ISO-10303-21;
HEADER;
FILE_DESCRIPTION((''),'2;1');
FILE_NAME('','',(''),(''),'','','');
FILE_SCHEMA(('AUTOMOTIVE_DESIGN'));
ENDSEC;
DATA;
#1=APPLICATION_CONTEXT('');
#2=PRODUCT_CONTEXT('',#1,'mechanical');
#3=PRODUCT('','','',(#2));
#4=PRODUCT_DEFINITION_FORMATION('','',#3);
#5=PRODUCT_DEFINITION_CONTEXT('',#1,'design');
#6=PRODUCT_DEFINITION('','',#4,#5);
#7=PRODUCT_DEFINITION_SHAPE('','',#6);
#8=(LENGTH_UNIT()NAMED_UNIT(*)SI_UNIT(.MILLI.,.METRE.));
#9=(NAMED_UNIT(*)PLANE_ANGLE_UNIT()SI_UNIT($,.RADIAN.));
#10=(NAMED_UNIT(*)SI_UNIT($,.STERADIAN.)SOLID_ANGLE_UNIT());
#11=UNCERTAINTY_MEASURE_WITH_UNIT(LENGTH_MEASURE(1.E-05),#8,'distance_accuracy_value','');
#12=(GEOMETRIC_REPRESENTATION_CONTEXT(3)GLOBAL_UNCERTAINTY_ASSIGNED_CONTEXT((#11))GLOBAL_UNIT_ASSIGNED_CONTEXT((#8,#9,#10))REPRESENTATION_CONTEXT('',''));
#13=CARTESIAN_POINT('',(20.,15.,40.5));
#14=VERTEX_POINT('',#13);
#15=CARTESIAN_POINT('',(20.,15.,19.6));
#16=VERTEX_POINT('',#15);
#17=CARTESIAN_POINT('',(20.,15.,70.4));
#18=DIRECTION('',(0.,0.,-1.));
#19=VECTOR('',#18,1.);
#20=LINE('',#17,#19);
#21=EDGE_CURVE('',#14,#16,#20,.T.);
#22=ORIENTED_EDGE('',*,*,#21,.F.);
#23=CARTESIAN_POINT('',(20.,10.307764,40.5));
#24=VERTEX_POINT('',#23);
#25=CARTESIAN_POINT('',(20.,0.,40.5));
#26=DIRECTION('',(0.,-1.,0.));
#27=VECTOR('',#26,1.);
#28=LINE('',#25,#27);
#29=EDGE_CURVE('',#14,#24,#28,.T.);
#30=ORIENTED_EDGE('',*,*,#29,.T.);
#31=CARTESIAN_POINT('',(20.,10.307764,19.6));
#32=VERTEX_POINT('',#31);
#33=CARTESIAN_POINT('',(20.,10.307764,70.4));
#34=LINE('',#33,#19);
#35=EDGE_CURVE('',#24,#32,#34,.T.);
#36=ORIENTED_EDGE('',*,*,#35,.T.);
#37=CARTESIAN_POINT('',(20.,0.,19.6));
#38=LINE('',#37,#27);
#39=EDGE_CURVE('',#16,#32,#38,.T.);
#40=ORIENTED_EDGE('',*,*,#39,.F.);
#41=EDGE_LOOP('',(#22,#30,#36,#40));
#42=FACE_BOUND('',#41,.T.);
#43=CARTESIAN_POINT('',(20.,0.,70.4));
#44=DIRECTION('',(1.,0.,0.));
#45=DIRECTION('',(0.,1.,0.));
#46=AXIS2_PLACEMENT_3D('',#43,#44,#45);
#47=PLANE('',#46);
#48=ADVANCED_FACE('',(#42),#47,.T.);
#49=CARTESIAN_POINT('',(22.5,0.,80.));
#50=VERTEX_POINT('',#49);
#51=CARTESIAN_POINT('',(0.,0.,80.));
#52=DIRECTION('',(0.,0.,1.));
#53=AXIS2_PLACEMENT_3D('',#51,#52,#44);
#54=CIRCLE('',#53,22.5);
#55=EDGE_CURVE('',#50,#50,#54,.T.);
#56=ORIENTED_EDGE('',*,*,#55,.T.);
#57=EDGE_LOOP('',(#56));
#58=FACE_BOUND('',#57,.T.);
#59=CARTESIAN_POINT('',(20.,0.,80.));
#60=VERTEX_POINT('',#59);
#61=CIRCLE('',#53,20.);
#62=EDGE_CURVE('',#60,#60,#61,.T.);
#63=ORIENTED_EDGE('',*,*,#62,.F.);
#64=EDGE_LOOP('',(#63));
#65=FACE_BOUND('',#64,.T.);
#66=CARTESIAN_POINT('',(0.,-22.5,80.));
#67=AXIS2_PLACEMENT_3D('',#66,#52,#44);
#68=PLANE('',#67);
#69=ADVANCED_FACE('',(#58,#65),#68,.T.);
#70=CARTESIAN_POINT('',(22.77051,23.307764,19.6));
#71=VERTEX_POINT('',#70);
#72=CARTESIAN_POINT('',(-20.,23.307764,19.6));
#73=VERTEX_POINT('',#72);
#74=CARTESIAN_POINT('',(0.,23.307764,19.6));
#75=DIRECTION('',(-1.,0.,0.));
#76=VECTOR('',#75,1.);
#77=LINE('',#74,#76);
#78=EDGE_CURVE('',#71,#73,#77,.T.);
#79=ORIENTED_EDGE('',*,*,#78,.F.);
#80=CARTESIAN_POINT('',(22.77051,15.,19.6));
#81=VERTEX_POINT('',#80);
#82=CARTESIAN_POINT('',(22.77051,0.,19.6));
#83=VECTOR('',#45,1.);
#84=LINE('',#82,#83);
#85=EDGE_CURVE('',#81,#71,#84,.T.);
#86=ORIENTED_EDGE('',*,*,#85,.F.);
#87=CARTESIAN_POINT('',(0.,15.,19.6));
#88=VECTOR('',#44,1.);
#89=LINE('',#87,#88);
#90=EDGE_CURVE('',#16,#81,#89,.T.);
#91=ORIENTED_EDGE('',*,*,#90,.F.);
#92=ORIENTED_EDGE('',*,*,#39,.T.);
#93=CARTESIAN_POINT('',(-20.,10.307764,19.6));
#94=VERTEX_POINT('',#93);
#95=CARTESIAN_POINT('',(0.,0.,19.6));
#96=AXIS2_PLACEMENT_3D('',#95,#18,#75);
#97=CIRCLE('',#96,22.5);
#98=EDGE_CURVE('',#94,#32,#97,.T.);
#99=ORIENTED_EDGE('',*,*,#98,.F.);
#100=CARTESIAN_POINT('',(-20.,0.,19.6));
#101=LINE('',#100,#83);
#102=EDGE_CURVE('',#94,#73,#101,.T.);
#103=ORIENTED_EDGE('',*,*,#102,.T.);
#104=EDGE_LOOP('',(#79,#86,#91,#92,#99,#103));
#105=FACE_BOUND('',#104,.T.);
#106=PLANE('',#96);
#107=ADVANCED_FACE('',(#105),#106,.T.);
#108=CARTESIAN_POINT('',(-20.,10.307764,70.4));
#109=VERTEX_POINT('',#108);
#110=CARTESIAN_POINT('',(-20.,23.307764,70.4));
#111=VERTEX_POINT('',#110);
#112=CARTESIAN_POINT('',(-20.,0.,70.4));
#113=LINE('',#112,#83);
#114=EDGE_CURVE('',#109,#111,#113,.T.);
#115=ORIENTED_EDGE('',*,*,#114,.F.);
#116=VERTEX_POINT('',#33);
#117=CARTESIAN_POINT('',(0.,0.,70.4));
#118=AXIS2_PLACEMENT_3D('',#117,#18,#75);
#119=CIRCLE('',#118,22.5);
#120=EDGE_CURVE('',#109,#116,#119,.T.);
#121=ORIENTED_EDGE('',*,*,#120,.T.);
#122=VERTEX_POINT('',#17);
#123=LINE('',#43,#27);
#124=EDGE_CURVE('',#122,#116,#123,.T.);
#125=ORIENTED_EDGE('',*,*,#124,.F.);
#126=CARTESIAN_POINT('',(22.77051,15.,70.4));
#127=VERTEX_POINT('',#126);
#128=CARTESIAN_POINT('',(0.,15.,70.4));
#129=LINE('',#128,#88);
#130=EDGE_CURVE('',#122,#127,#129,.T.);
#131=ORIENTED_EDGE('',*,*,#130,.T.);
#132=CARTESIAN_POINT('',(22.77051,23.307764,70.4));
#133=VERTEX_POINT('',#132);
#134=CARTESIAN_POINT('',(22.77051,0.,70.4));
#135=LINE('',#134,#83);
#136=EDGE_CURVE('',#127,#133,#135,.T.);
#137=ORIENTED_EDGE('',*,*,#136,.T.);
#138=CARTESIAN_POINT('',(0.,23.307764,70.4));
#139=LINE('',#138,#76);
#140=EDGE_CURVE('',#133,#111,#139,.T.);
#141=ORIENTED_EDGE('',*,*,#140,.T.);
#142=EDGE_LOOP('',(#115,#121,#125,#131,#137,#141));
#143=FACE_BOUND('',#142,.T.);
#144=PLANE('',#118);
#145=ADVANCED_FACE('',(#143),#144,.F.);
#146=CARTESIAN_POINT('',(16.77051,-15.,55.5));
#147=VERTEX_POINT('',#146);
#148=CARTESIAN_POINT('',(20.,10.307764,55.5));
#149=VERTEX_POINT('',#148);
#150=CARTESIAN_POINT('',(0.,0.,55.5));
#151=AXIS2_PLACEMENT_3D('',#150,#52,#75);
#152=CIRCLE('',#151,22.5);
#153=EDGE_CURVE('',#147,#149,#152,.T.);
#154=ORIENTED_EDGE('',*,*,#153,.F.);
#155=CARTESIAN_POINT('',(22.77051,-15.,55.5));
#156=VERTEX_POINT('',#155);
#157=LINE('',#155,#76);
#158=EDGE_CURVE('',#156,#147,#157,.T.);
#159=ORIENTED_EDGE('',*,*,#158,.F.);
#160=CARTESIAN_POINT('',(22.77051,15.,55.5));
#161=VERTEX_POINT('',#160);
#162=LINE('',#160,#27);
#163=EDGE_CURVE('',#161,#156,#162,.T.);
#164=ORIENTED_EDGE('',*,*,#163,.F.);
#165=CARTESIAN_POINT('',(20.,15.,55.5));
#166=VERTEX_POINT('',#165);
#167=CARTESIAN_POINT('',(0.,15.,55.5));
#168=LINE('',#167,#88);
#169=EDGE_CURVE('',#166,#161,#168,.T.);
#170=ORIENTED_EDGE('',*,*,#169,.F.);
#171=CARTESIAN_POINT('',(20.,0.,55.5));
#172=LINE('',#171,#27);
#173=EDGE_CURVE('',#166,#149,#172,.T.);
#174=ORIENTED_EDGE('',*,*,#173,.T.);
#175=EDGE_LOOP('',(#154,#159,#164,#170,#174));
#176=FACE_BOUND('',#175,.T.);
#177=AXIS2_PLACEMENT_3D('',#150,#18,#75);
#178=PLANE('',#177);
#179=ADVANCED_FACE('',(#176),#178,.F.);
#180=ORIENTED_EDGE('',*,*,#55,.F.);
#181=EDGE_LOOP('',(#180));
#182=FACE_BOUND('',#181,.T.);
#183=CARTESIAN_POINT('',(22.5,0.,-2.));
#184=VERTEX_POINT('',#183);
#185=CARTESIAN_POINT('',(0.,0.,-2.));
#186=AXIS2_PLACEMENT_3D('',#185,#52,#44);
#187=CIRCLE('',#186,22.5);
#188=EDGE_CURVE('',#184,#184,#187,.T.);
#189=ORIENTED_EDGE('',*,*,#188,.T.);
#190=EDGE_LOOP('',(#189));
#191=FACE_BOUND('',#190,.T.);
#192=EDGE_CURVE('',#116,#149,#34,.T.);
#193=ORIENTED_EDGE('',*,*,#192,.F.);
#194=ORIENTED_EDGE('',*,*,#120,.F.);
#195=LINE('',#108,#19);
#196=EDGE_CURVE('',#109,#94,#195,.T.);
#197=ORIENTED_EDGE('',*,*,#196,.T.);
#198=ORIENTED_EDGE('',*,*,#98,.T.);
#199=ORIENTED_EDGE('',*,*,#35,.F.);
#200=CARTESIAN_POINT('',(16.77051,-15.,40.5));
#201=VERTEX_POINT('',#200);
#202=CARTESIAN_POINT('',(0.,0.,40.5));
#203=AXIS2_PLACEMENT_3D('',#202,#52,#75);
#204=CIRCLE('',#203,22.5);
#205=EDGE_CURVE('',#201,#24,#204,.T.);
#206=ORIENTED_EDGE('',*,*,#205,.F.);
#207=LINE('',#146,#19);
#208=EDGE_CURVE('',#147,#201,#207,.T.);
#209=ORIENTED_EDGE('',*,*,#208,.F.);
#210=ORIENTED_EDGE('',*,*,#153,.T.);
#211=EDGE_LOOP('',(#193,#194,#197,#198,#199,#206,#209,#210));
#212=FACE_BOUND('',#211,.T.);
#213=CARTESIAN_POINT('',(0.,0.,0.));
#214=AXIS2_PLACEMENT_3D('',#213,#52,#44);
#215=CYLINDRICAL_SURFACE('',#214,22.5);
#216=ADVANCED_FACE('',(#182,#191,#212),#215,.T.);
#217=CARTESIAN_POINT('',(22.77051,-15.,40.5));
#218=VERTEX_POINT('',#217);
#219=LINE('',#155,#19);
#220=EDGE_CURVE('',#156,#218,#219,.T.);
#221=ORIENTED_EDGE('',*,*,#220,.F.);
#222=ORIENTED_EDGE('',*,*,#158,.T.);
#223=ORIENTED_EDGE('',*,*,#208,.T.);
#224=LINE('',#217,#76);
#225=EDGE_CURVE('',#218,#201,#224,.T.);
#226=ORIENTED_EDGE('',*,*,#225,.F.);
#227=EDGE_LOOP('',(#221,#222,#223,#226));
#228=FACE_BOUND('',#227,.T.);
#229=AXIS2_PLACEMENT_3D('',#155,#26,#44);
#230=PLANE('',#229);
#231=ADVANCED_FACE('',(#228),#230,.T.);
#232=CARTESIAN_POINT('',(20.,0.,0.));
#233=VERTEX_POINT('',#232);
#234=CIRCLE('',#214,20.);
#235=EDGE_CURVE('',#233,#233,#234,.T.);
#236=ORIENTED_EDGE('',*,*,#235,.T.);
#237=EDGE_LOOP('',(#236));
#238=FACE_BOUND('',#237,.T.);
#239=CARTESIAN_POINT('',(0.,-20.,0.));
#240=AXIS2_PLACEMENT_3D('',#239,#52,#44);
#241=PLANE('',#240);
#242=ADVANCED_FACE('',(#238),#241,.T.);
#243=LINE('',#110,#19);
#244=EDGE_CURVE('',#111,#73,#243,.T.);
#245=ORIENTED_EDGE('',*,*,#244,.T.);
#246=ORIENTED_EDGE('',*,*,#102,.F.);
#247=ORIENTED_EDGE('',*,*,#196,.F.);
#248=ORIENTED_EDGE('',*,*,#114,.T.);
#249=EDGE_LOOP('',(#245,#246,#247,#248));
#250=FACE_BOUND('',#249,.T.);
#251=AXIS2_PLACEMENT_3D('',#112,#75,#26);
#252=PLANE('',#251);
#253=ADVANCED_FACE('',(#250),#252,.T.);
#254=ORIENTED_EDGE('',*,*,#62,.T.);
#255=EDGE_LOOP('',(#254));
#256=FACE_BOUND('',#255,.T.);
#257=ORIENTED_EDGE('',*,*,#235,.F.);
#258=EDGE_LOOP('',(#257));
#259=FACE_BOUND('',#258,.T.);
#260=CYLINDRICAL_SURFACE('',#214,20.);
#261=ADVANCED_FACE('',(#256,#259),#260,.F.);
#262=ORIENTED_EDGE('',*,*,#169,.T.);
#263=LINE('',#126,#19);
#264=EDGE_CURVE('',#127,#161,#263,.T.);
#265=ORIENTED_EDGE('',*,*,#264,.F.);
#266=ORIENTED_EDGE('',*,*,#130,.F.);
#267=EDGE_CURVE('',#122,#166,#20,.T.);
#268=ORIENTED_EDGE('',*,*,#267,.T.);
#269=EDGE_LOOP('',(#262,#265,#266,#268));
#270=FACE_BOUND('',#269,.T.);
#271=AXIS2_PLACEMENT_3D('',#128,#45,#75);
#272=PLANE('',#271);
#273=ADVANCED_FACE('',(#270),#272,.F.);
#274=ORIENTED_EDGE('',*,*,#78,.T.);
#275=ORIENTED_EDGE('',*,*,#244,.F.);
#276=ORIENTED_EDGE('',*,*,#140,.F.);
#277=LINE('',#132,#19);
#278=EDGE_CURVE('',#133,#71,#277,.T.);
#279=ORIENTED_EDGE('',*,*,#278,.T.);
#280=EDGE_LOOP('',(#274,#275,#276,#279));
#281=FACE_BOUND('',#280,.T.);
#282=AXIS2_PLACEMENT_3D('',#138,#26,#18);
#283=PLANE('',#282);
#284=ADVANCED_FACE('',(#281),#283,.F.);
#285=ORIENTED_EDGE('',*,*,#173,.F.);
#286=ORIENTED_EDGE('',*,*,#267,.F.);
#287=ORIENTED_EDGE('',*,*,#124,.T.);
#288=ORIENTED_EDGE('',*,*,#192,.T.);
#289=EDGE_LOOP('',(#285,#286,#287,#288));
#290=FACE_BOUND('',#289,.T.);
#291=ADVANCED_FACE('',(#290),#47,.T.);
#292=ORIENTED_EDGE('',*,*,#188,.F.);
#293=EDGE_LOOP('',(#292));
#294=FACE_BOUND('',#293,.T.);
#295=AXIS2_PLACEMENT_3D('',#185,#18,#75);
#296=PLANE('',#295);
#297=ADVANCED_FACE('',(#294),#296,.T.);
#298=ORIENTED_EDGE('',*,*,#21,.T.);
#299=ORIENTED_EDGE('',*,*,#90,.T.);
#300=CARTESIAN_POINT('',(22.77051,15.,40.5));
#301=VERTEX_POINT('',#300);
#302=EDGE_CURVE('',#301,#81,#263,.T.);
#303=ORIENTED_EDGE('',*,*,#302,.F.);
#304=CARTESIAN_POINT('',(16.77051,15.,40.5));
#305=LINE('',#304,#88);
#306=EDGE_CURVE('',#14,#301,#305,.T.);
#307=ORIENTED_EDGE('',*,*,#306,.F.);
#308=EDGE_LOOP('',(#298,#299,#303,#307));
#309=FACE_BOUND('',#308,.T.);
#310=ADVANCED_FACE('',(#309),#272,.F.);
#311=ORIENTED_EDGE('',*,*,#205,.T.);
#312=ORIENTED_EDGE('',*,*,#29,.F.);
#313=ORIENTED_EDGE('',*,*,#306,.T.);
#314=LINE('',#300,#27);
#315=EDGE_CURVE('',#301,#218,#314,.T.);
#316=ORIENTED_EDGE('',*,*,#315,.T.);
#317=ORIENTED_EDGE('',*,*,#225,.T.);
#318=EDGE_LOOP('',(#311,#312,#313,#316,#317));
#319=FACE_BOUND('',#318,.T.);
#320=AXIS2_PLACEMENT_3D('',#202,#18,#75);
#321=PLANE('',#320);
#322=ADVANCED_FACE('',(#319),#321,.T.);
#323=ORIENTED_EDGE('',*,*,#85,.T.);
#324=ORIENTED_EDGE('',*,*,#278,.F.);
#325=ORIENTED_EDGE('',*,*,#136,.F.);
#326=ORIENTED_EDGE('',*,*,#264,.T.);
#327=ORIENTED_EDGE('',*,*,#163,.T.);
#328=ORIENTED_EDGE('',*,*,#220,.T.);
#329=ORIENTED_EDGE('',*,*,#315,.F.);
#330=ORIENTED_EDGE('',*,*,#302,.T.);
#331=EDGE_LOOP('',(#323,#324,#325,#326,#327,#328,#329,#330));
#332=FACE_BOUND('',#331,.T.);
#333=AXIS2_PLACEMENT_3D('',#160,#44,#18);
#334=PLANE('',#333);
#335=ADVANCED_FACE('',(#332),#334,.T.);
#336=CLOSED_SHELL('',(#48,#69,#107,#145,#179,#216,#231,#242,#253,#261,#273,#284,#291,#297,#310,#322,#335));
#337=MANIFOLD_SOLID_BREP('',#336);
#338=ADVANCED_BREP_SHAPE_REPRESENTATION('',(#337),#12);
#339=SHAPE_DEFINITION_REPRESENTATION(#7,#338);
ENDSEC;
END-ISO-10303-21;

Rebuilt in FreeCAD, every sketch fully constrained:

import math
import FreeCAD as App
import Part
import Sketcher

V = App.Vector
Q = App.Units.Quantity

doc = App.newDocument("Part")
body = doc.addObject("PartDesign::Body", "Body")

sketch1 = body.newObject("Sketcher::SketchObject", "Sketch")
sketch1.AttachmentSupport = (doc.getObject("YZ_Plane"), [""])
sketch1.MapMode = "FlatFace"
sketch1.addGeometry([
    Part.LineSegment(V(0, -2, 0), V(0, 0, 0)),
    Part.LineSegment(V(0, 0, 0), V(-20, 0, 0)),
    Part.LineSegment(V(-20, 0, 0), V(-20, 80, 0)),
    Part.LineSegment(V(-20, 80, 0), V(-22.5, 80, 0)),
    Part.LineSegment(V(-22.5, 80, 0), V(-22.5, -2, 0)),
    Part.LineSegment(V(-22.5, -2, 0), V(0, -2, 0)),
], False)
sketch1.addConstraint([
    Sketcher.Constraint("Coincident", 0, 2, 1, 1),
    Sketcher.Constraint("Coincident", 1, 2, 2, 1),
    Sketcher.Constraint("Coincident", 2, 2, 3, 1),
    Sketcher.Constraint("Coincident", 3, 2, 4, 1),
    Sketcher.Constraint("Coincident", 4, 2, 5, 1),
    Sketcher.Constraint("Coincident", 5, 2, 0, 1),
    Sketcher.Constraint("Vertical", 0),
    Sketcher.Constraint("Horizontal", 1),
    Sketcher.Constraint("Vertical", 2),
    Sketcher.Constraint("Horizontal", 3),
    Sketcher.Constraint("Vertical", 4),
    Sketcher.Constraint("Horizontal", 5),
    Sketcher.Constraint("Coincident", 0, 2, -1, 1),
    Sketcher.Constraint("DistanceX", 1, 2, 1, 1, Q("20 mm")),
    Sketcher.Constraint("DistanceY", 0, 1, 0, 2, Q("2 mm")),
    Sketcher.Constraint("DistanceY", 2, 1, 2, 2, Q("80 mm")),
    Sketcher.Constraint("DistanceX", 3, 2, 3, 1, Q("2.5 mm")),
])
revolution = body.newObject("PartDesign::Revolution", "Revolution")
revolution.Profile = sketch1
revolution.ReferenceAxis = (sketch1, ["V_Axis"])
revolution.Angle = 360

sketch2 = body.newObject("Sketcher::SketchObject", "Sketch001")
sketch2.AttachmentSupport = (doc.getObject("XY_Plane"), [""])
sketch2.MapMode = "FlatFace"
sketch2.AttachmentOffset = App.Placement(V(0, 0, 48), App.Rotation())
sketch2.addGeometry([
    Part.LineSegment(V(17, 15, 0), V(23, 15, 0)),
    Part.LineSegment(V(23, 15, 0), V(23, -15, 0)),
    Part.LineSegment(V(23, -15, 0), V(17, -15, 0)),
    Part.ArcOfCircle(Part.Circle(V(0, 0, 0), V(0, 0, 1), 22), math.radians(-42), math.radians(42)),
], False)
sketch2.addConstraint([
    Sketcher.Constraint("Coincident", 0, 2, 1, 1),
    Sketcher.Constraint("Coincident", 1, 2, 2, 1),
    Sketcher.Constraint("Coincident", 2, 2, 3, 1),
    Sketcher.Constraint("Coincident", 3, 2, 0, 1),
    Sketcher.Constraint("Horizontal", 0),
    Sketcher.Constraint("Vertical", 1),
    Sketcher.Constraint("Horizontal", 2),
    Sketcher.Constraint("Coincident", 3, 3, -1, 1),
    Sketcher.Constraint("Vertical", 2, 2, 3, 2),
    Sketcher.Constraint("Radius", 3, Q("22.5 mm")),
    Sketcher.Constraint("DistanceX", 0, 1, 0, 2, Q("6 mm")),
    Sketcher.Constraint("DistanceY", 1, 2, 1, 1, Q("30 mm")),
])
pad1 = body.newObject("PartDesign::Pad", "Pad")
pad1.Profile = sketch2
pad1.Type = "TwoLengths"
pad1.Length = 7.5
pad1.Length2 = 7.5
pad1.Reversed = True

sketch3 = body.newObject("Sketcher::SketchObject", "Sketch002")
sketch3.AttachmentSupport = (doc.getObject("XY_Plane"), [""])
sketch3.MapMode = "FlatFace"
sketch3.AttachmentOffset = App.Placement(V(0, 0, 48), App.Rotation())
sketch3.addGeometry([
    Part.ArcOfCircle(Part.Circle(V(0, 0, 0), V(0, 0, 1), 22.5), math.radians(27), math.radians(153)),
    Part.LineSegment(V(-20, 10.3, 0), V(-20, 23.3, 0)),
    Part.LineSegment(V(-20, 23.3, 0), V(22.8, 23.3, 0)),
    Part.LineSegment(V(22.8, 23.3, 0), V(22.8, 15, 0)),
    Part.LineSegment(V(22.8, 15, 0), V(20, 15, 0)),
    Part.LineSegment(V(20, 15, 0), V(20, 10.3, 0)),
], False)
sketch3.addConstraint([
    Sketcher.Constraint("Coincident", 0, 2, 1, 1),
    Sketcher.Constraint("Coincident", 1, 2, 2, 1),
    Sketcher.Constraint("Coincident", 2, 2, 3, 1),
    Sketcher.Constraint("Coincident", 3, 2, 4, 1),
    Sketcher.Constraint("Coincident", 4, 2, 5, 1),
    Sketcher.Constraint("Coincident", 5, 2, 0, 1),
    Sketcher.Constraint("Vertical", 1),
    Sketcher.Constraint("Horizontal", 2),
    Sketcher.Constraint("Vertical", 3),
    Sketcher.Constraint("Horizontal", 4),
    Sketcher.Constraint("Vertical", 5),
    Sketcher.Constraint("Coincident", 0, 3, -1, 1),
    Sketcher.Constraint("Horizontal", 0, 2, 5, 2),
    Sketcher.Constraint("Radius", 0, Q("22.5 mm")),
    Sketcher.Constraint("DistanceY", 1, 1, 1, 2, Q("13 mm")),
    Sketcher.Constraint("DistanceX", 0, 2, -1, 1, Q("20 mm")),
    Sketcher.Constraint("DistanceY", -1, 1, 3, 2, Q("15 mm")),
    Sketcher.Constraint("DistanceX", 2, 1, 2, 2, Q("42.77051 mm")),
])
pad2 = body.newObject("PartDesign::Pad", "Pad001")
pad2.Profile = sketch3
pad2.Type = "TwoLengths"
pad2.Length = 28.4
pad2.Length2 = 22.4
pad2.Reversed = True

doc.recompute()
